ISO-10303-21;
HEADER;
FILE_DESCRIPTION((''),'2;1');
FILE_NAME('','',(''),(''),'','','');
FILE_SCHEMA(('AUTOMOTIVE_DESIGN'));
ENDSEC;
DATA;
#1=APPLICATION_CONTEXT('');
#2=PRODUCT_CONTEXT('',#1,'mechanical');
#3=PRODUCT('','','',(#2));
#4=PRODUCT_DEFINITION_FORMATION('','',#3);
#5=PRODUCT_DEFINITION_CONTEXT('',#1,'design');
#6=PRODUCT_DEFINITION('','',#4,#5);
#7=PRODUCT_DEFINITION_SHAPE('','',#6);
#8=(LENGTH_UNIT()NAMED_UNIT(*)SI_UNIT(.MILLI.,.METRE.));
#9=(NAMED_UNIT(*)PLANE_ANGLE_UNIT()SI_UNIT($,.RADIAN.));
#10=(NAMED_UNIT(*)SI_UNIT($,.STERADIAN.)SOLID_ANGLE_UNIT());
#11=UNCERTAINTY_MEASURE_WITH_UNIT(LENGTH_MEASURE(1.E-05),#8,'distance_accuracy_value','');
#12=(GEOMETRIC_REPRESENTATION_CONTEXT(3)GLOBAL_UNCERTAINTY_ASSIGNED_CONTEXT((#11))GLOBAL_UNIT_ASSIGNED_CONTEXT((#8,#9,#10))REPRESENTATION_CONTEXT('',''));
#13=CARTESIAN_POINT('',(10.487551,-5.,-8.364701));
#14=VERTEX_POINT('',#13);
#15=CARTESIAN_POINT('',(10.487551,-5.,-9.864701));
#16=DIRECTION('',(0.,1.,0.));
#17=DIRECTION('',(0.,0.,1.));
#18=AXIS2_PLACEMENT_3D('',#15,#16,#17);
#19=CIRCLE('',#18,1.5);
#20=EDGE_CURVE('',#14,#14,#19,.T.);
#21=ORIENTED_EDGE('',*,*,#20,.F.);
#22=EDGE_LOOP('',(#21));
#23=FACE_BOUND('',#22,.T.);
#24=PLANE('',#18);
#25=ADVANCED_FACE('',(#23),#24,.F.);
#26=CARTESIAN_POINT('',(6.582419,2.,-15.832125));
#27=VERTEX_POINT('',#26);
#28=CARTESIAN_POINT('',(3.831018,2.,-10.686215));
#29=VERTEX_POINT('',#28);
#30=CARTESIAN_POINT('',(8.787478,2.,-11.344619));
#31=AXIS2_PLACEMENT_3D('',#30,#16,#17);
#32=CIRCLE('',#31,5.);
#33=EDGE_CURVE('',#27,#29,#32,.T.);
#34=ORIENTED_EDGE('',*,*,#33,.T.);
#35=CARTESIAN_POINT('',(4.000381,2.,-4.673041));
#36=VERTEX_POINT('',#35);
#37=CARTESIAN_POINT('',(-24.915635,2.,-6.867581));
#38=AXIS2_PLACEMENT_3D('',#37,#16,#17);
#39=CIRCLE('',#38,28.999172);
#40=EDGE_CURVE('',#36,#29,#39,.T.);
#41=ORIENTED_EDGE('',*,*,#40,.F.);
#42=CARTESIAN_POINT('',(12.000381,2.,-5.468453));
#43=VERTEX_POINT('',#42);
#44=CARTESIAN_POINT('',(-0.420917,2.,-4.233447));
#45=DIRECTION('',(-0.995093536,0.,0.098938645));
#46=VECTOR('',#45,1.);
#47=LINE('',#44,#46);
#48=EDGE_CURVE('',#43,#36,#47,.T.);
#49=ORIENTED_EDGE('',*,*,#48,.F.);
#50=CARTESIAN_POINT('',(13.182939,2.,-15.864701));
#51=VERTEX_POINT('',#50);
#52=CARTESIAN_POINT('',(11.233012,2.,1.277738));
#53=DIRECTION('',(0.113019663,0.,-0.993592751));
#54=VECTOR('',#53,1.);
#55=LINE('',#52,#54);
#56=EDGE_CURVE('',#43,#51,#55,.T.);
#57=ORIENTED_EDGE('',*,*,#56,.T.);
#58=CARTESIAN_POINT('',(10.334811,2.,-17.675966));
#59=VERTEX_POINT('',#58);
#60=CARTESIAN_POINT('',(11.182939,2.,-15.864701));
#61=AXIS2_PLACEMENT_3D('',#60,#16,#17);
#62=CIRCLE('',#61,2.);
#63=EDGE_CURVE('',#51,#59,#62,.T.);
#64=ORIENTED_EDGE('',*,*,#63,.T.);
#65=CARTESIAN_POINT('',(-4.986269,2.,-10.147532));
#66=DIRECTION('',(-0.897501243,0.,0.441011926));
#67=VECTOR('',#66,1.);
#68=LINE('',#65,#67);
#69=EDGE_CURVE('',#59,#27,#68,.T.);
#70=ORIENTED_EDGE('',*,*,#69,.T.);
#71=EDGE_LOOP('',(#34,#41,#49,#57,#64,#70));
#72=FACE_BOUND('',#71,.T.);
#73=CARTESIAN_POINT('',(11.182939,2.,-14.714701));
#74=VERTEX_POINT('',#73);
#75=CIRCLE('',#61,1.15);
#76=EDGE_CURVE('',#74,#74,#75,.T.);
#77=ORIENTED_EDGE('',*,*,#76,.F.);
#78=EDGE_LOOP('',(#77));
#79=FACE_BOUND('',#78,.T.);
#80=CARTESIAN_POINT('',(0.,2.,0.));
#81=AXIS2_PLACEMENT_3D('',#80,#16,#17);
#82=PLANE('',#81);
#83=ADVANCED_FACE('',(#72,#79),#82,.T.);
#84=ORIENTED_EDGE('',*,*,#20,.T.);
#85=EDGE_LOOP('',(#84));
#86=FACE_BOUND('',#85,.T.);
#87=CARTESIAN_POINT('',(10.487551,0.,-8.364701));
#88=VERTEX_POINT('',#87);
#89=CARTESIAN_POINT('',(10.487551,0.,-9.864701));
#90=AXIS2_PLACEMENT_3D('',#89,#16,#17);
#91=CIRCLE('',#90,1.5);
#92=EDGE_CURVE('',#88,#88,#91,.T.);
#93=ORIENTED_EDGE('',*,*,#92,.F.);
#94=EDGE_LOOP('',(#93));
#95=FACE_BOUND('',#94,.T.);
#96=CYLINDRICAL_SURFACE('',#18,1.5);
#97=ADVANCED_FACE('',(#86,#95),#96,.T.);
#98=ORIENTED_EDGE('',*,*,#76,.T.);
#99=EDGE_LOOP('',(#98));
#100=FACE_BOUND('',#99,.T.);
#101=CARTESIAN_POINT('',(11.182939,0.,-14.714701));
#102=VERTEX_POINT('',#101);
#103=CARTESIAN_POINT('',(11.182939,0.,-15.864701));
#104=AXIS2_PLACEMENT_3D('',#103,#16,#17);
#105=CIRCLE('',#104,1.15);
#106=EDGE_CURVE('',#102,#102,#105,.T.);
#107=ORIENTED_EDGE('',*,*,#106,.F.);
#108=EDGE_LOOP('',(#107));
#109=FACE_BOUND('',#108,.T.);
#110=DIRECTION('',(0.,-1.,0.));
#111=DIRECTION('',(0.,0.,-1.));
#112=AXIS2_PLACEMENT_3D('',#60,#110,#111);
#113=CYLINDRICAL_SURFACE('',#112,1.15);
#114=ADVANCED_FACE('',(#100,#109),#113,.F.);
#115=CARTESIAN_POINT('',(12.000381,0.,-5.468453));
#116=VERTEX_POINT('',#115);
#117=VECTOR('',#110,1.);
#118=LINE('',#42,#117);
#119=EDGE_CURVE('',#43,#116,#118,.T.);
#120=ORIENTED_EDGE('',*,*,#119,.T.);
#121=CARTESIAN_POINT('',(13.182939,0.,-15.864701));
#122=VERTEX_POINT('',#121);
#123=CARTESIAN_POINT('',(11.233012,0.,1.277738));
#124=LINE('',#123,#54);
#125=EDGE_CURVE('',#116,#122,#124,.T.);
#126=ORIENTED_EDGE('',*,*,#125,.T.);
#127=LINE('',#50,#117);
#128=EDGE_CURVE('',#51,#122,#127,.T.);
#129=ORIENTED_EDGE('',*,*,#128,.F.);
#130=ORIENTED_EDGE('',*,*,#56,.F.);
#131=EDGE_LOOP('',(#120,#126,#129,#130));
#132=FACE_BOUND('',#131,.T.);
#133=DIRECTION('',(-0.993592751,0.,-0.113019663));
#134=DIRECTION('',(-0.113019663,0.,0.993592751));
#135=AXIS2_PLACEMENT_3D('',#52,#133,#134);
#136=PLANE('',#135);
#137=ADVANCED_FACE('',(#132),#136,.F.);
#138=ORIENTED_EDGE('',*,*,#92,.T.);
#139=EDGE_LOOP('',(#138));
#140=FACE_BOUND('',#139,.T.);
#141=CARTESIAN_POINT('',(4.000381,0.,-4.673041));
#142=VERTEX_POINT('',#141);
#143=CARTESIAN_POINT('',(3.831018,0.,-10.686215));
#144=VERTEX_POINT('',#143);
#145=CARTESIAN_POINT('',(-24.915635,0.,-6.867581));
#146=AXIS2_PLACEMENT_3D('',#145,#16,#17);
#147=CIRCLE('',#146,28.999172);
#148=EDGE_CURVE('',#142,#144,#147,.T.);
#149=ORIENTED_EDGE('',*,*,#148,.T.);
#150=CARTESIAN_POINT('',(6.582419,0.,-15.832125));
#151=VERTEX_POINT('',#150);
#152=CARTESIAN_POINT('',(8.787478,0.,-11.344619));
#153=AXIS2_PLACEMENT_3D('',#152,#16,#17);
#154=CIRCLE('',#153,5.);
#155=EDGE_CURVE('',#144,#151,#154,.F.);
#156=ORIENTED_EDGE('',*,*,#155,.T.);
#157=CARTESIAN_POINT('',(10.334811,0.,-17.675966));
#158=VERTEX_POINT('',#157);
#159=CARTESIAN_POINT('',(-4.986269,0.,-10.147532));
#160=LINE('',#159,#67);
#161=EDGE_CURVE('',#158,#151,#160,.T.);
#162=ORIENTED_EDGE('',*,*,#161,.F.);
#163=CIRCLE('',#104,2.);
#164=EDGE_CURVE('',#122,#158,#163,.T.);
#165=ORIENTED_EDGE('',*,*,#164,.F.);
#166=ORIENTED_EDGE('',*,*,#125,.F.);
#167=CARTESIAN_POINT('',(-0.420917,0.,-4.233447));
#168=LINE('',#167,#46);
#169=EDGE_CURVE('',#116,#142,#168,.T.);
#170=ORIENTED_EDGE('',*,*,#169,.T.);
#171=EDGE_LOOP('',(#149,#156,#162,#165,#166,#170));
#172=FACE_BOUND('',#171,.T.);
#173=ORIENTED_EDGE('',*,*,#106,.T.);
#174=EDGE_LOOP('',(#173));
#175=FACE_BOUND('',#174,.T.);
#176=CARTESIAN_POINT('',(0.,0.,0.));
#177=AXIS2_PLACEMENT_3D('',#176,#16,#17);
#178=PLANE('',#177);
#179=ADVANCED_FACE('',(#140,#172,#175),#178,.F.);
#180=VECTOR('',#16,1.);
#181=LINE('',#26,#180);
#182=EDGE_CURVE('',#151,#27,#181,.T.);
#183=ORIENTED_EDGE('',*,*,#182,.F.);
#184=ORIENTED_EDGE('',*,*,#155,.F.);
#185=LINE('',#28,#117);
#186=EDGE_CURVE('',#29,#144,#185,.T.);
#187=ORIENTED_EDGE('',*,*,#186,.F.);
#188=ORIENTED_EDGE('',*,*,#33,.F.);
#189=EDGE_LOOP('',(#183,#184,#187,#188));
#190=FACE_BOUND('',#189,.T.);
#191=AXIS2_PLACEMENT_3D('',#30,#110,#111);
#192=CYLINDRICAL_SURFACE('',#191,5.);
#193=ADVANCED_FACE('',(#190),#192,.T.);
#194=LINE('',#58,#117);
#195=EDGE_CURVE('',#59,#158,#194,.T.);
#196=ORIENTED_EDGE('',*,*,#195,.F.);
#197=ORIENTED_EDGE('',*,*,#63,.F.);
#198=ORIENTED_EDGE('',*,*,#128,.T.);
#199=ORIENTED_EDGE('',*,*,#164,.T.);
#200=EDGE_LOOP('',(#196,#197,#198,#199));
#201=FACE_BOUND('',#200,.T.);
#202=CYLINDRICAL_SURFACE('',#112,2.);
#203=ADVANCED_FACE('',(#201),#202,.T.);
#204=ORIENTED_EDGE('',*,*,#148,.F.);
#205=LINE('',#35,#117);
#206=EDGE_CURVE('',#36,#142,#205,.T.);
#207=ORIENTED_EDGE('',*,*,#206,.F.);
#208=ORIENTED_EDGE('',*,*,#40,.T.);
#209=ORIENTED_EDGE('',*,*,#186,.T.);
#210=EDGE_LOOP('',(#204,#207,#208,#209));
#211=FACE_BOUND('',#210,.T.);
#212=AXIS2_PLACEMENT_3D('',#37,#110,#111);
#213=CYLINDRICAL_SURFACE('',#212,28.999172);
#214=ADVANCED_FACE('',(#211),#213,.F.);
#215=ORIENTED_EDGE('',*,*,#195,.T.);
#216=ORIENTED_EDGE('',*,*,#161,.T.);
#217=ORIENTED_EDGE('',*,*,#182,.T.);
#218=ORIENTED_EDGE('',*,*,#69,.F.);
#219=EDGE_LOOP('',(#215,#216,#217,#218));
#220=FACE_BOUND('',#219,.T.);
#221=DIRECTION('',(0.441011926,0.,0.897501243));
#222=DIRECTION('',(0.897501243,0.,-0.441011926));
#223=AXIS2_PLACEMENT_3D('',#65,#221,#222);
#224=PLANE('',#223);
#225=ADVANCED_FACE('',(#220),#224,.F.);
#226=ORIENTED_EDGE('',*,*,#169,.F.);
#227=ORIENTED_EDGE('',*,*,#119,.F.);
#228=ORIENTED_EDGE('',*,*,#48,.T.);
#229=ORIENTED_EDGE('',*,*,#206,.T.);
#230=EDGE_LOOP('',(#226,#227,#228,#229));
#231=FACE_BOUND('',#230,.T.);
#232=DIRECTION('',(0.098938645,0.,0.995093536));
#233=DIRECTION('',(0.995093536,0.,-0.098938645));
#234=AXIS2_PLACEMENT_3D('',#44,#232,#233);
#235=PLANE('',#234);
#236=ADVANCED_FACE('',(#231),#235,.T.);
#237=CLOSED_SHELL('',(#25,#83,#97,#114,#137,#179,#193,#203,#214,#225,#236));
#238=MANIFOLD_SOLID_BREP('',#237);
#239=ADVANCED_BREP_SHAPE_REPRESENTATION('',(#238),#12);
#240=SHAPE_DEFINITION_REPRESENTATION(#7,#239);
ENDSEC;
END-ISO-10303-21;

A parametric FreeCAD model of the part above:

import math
import FreeCAD as App
import Part
import Sketcher
from FreeCAD import Vector
Q = App.Units.Quantity


def edges_at(feature, points):
    """Names of the edges that pass closest to the given points."""
    edges = feature.Shape.Edges
    near = lambda p: min(range(len(edges)), key=lambda i: edges[i].distToShape(Part.Vertex(*p))[0])
    return sorted({f"Edge{near(p) + 1}" for p in points})

doc = App.newDocument("Part")
body = doc.addObject("PartDesign::Body", "Body")

# Sketch on XZ plane
sketch1 = doc.addObject("Sketcher::SketchObject", "Sketch")
body.addObject(sketch1)
sketch1.AttachmentSupport = (doc.XZ_Plane, [""])
sketch1.MapMode = "FlatFace"
sketch1.addGeometry([
    Part.LineSegment(Vector(4, -4.7, 0), Vector(12, -5.5, 0)),  # 0
    Part.LineSegment(Vector(12, -5.5, 0), Vector(13.2, -15.9, 0)),  # 1
    Part.ArcOfCircle(Part.Circle(Vector(11.2, -15.9, 0), Vector(0, 0, 1), 2), math.radians(-115), math.radians(0)),  # 2
    Part.LineSegment(Vector(10.3, -17.7, 0), Vector(3.2, -14.1, 0)),  # 3
    Part.ArcOfCircle(Part.Circle(Vector(-24.9, -6.9, 0), Vector(0, 0, 1), 29), math.radians(-14.54), math.radians(4.34)),  # 4
    Part.Circle(Vector(11.2, -15.9, 0), Vector(0, 0, 1), 1.1),  # 5
], False)
sketch1.addConstraint([
    Sketcher.Constraint("Coincident", 0, 2, 1, 1),
    Sketcher.Constraint("Coincident", 1, 2, 2, 2),
    Sketcher.Constraint("Coincident", 2, 1, 3, 1),
    Sketcher.Constraint("Coincident", 3, 2, 4, 1),
    Sketcher.Constraint("Coincident", 4, 2, 0, 1),
    Sketcher.Constraint("Coincident", 5, 3, 2, 3),
    Sketcher.Constraint("Horizontal", 5, 3, 1, 2),
    Sketcher.Constraint("Radius", 2, Q("2 mm")),
    Sketcher.Constraint("Diameter", 5, Q("2.3 mm")),
    Sketcher.Constraint("Distance", 3, Q("8 mm")),
    Sketcher.Constraint("DistanceX", 4, 2, 0, 2, Q("8 mm")),
    Sketcher.Constraint("Radius", 4, Q("28.999172 mm")),
    Sketcher.Constraint("DistanceY", 2, 3, -1, 1, Q("15.864701 mm")),
    Sketcher.Constraint("DistanceX", -1, 1, 3, 2, Q("3.154801 mm")),
    Sketcher.Constraint("Distance", 1, Q("10.463289 mm")),
    Sketcher.Constraint("DistanceX", -1, 1, 2, 3, Q("11.182939 mm")),
    Sketcher.Constraint("DistanceY", 4, 3, -1, 1, Q("6.867581 mm")),
    Sketcher.Constraint("DistanceX", -1, 1, 0, 2, Q("12.000381 mm")),
    Sketcher.Constraint("DistanceX", -1, 1, 2, 1, Q("10.334811 mm")),
])
pad1 = doc.addObject("PartDesign::Pad", "Pad")
body.addObject(pad1)
pad1.Profile = sketch1
pad1.Length = 2
pad1.Reversed = True

# Sketch on XZ plane
sketch2 = doc.addObject("Sketcher::SketchObject", "Sketch001")
body.addObject(sketch2)
sketch2.AttachmentSupport = (doc.XZ_Plane, [""])
sketch2.MapMode = "FlatFace"
sketch2.addGeometry(Part.Circle(Vector(10.5, -9.9, 0), Vector(0, 0, 1), 1.5), False)
sketch2.addConstraint([
    Sketcher.Constraint("Diameter", 0, Q("3 mm")),
    Sketcher.Constraint("DistanceY", 0, 3, -1, 1, Q("9.864701 mm")),
    Sketcher.Constraint("DistanceX", -1, 1, 0, 3, Q("10.487551 mm")),
])
pad2 = doc.addObject("PartDesign::Pad", "Pad001")
body.addObject(pad2)
pad2.Profile = sketch2
pad2.Length = 5
doc.recompute()

fillet = doc.addObject("PartDesign::Fillet", "Fillet")
body.addObject(fillet)
fillet.Base = (pad2, edges_at(pad2, [(3.155, 1, -14.148)]))
fillet.Radius = 5

doc.recompute()
